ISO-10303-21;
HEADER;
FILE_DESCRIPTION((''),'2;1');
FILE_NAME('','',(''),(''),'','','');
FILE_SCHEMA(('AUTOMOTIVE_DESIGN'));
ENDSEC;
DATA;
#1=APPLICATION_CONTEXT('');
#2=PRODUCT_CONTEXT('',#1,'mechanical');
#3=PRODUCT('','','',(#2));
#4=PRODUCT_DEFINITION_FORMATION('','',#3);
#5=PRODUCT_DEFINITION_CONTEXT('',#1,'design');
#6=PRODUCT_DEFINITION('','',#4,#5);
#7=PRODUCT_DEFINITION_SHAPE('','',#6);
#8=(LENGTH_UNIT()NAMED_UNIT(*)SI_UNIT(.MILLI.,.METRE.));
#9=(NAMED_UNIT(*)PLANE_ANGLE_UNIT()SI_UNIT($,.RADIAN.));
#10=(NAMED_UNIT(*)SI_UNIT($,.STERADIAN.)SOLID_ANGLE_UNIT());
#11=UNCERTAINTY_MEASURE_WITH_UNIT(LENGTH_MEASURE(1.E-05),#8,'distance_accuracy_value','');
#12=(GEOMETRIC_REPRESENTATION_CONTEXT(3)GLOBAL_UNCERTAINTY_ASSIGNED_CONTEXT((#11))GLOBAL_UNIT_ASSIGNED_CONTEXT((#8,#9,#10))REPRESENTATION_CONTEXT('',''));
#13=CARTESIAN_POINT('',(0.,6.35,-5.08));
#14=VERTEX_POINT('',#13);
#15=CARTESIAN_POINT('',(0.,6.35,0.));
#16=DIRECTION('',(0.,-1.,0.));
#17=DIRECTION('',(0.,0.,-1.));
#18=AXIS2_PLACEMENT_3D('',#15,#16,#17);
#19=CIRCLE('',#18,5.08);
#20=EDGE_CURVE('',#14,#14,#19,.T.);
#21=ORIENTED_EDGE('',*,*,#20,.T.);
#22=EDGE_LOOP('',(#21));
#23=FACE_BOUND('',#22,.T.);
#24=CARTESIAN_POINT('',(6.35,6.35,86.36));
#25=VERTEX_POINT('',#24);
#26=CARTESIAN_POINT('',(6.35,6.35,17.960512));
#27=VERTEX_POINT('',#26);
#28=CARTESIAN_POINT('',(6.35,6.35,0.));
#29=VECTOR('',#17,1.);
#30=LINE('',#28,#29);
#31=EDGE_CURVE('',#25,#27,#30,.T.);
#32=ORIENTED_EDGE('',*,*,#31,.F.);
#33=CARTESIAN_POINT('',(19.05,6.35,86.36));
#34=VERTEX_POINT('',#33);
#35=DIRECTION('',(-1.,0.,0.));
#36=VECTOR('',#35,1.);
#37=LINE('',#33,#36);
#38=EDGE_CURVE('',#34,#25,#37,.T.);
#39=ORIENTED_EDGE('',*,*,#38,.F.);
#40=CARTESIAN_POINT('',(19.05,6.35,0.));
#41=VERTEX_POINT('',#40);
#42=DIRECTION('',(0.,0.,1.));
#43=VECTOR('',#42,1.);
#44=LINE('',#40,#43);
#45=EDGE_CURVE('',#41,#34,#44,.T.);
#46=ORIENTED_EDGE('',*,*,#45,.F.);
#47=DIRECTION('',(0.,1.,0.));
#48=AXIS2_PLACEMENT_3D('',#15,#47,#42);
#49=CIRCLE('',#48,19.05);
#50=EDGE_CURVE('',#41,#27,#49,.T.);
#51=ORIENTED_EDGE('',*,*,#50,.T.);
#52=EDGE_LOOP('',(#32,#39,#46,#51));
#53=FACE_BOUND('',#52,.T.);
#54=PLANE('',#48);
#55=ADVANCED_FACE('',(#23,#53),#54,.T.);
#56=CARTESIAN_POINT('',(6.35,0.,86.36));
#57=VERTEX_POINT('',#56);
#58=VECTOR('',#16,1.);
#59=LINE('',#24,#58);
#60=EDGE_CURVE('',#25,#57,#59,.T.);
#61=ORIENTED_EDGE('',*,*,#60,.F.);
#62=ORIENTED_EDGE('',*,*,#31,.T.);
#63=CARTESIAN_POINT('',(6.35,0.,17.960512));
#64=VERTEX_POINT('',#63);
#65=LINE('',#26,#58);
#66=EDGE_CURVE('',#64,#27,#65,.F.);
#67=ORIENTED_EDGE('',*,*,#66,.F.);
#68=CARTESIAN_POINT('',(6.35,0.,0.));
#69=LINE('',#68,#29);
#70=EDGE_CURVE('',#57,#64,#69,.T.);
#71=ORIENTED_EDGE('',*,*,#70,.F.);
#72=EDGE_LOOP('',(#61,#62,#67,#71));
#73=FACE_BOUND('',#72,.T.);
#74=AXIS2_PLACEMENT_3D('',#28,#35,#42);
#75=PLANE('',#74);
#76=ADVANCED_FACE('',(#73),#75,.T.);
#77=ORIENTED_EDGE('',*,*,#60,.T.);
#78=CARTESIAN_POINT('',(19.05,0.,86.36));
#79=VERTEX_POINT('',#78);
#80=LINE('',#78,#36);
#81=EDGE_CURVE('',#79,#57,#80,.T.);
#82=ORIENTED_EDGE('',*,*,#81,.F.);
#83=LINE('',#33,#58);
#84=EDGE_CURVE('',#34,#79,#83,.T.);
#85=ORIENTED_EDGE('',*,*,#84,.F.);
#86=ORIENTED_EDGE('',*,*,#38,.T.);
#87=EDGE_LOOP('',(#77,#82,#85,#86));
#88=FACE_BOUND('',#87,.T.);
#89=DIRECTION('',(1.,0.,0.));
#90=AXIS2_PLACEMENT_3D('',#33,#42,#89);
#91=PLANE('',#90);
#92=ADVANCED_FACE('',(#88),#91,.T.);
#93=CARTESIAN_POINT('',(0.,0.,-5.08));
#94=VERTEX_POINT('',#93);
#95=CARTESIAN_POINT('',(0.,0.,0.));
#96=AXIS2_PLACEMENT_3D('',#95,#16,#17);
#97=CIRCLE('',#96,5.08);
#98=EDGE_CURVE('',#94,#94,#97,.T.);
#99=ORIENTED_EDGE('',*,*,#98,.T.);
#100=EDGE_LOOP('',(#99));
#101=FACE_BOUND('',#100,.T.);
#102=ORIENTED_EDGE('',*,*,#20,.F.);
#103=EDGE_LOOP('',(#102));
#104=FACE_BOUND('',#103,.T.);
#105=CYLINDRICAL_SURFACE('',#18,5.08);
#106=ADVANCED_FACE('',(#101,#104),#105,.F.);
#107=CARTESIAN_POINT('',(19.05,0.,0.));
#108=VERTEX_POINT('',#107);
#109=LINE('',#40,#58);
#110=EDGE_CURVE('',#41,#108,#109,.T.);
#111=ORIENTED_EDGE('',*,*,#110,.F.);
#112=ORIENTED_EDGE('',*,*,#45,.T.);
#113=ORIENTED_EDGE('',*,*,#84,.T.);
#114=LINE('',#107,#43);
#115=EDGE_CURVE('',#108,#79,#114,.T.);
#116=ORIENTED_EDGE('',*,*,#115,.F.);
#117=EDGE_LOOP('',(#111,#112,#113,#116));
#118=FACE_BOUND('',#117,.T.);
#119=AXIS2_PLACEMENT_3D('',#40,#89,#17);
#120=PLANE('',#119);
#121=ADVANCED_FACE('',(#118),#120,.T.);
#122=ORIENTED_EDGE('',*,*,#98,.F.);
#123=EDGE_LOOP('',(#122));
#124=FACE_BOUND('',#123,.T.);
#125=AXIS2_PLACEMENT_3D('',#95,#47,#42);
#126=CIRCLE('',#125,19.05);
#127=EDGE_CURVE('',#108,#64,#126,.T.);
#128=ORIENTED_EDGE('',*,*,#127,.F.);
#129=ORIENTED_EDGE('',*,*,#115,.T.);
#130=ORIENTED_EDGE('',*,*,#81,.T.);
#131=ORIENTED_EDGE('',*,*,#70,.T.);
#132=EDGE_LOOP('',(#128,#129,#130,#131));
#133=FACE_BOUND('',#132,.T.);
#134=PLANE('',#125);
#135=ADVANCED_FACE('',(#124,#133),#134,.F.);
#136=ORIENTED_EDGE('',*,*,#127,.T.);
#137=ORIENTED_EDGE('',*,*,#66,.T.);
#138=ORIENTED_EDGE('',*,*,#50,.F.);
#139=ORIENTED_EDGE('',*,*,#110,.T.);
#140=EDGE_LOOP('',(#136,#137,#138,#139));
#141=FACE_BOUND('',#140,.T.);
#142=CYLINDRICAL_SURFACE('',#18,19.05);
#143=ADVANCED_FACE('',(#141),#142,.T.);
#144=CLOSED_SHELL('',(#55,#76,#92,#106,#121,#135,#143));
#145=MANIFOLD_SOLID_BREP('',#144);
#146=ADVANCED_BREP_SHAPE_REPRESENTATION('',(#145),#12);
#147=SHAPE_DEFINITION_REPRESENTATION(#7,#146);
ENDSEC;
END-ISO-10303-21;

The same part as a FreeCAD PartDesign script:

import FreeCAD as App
import Part
import Sketcher
from FreeCAD import Vector
Q = App.Units.Quantity

doc = App.newDocument("Part")
body = doc.addObject("PartDesign::Body", "Body")

# Sketch on XZ plane
sketch1 = body.newObject("Sketcher::SketchObject", "Sketch")
sketch1.AttachmentSupport = (doc.getObject("XZ_Plane"), [""])
sketch1.MapMode = "FlatFace"
sketch1.addGeometry(Part.Circle(Vector(0, 0, 0), Vector(0, 0, 1), 19), False)
sketch1.addConstraint(Sketcher.Constraint("Coincident", 0, 3, -1, 1))
sketch1.addConstraint(Sketcher.Constraint("Diameter", 0, Q("1.5 in")))
pad1 = body.newObject("PartDesign::Pad", "Pad")
pad1.Profile = sketch1
pad1.Length = Q("0.25 in")
pad1.Reversed = True

# Sketch on XZ plane
sketch2 = body.newObject("Sketcher::SketchObject", "Sketch001")
sketch2.AttachmentSupport = (doc.getObject("XZ_Plane"), [""])
sketch2.MapMode = "FlatFace"
sketch2.addGeometry(Part.LineSegment(Vector(6, 86, 0), Vector(6, 0, 0)), False)
sketch2.addGeometry(Part.LineSegment(Vector(6, 0, 0), Vector(19, 0, 0)), False)
sketch2.addGeometry(Part.LineSegment(Vector(19, 0, 0), Vector(19, 86, 0)), False)
sketch2.addGeometry(Part.LineSegment(Vector(19, 86, 0), Vector(6, 86, 0)), False)
sketch2.addConstraint(Sketcher.Constraint("Coincident", 0, 2, 1, 1))
sketch2.addConstraint(Sketcher.Constraint("Coincident", 1, 2, 2, 1))
sketch2.addConstraint(Sketcher.Constraint("Coincident", 2, 2, 3, 1))
sketch2.addConstraint(Sketcher.Constraint("Coincident", 3, 2, 0, 1))
sketch2.addConstraint(Sketcher.Constraint("Vertical", 0))
sketch2.addConstraint(Sketcher.Constraint("Horizontal", 1))
sketch2.addConstraint(Sketcher.Constraint("Vertical", 2))
sketch2.addConstraint(Sketcher.Constraint("Horizontal", 3))
sketch2.addConstraint(Sketcher.Constraint("PointOnObject", 0, 2, -1))
sketch2.addConstraint(Sketcher.Constraint("DistanceX", 1, 1, 1, 2, Q("0.5 in")))
sketch2.addConstraint(Sketcher.Constraint("DistanceY", 0, 2, 0, 1, Q("3.4 in")))
sketch2.addConstraint(Sketcher.Constraint("DistanceX", -1, 1, 0, 2, Q("0.25 in")))
pad2 = body.newObject("PartDesign::Pad", "Pad001")
pad2.Profile = sketch2
pad2.Length = Q("0.25 in")
pad2.Reversed = True

# Sketch on XZ plane
sketch3 = body.newObject("Sketcher::SketchObject", "Sketch002")
sketch3.AttachmentSupport = (doc.getObject("XZ_Plane"), [""])
sketch3.MapMode = "FlatFace"
sketch3.addGeometry(Part.Circle(Vector(0, 0, 0), Vector(0, 0, 1), 5), False)
sketch3.addConstraint(Sketcher.Constraint("Coincident", 0, 3, -1, 1))
sketch3.addConstraint(Sketcher.Constraint("Diameter", 0, Q("0.4 in")))
pocket1 = body.newObject("PartDesign::Pocket", "Pocket")
pocket1.Profile = sketch3
pocket1.Length = Q("0.25 in")

doc.recompute()
